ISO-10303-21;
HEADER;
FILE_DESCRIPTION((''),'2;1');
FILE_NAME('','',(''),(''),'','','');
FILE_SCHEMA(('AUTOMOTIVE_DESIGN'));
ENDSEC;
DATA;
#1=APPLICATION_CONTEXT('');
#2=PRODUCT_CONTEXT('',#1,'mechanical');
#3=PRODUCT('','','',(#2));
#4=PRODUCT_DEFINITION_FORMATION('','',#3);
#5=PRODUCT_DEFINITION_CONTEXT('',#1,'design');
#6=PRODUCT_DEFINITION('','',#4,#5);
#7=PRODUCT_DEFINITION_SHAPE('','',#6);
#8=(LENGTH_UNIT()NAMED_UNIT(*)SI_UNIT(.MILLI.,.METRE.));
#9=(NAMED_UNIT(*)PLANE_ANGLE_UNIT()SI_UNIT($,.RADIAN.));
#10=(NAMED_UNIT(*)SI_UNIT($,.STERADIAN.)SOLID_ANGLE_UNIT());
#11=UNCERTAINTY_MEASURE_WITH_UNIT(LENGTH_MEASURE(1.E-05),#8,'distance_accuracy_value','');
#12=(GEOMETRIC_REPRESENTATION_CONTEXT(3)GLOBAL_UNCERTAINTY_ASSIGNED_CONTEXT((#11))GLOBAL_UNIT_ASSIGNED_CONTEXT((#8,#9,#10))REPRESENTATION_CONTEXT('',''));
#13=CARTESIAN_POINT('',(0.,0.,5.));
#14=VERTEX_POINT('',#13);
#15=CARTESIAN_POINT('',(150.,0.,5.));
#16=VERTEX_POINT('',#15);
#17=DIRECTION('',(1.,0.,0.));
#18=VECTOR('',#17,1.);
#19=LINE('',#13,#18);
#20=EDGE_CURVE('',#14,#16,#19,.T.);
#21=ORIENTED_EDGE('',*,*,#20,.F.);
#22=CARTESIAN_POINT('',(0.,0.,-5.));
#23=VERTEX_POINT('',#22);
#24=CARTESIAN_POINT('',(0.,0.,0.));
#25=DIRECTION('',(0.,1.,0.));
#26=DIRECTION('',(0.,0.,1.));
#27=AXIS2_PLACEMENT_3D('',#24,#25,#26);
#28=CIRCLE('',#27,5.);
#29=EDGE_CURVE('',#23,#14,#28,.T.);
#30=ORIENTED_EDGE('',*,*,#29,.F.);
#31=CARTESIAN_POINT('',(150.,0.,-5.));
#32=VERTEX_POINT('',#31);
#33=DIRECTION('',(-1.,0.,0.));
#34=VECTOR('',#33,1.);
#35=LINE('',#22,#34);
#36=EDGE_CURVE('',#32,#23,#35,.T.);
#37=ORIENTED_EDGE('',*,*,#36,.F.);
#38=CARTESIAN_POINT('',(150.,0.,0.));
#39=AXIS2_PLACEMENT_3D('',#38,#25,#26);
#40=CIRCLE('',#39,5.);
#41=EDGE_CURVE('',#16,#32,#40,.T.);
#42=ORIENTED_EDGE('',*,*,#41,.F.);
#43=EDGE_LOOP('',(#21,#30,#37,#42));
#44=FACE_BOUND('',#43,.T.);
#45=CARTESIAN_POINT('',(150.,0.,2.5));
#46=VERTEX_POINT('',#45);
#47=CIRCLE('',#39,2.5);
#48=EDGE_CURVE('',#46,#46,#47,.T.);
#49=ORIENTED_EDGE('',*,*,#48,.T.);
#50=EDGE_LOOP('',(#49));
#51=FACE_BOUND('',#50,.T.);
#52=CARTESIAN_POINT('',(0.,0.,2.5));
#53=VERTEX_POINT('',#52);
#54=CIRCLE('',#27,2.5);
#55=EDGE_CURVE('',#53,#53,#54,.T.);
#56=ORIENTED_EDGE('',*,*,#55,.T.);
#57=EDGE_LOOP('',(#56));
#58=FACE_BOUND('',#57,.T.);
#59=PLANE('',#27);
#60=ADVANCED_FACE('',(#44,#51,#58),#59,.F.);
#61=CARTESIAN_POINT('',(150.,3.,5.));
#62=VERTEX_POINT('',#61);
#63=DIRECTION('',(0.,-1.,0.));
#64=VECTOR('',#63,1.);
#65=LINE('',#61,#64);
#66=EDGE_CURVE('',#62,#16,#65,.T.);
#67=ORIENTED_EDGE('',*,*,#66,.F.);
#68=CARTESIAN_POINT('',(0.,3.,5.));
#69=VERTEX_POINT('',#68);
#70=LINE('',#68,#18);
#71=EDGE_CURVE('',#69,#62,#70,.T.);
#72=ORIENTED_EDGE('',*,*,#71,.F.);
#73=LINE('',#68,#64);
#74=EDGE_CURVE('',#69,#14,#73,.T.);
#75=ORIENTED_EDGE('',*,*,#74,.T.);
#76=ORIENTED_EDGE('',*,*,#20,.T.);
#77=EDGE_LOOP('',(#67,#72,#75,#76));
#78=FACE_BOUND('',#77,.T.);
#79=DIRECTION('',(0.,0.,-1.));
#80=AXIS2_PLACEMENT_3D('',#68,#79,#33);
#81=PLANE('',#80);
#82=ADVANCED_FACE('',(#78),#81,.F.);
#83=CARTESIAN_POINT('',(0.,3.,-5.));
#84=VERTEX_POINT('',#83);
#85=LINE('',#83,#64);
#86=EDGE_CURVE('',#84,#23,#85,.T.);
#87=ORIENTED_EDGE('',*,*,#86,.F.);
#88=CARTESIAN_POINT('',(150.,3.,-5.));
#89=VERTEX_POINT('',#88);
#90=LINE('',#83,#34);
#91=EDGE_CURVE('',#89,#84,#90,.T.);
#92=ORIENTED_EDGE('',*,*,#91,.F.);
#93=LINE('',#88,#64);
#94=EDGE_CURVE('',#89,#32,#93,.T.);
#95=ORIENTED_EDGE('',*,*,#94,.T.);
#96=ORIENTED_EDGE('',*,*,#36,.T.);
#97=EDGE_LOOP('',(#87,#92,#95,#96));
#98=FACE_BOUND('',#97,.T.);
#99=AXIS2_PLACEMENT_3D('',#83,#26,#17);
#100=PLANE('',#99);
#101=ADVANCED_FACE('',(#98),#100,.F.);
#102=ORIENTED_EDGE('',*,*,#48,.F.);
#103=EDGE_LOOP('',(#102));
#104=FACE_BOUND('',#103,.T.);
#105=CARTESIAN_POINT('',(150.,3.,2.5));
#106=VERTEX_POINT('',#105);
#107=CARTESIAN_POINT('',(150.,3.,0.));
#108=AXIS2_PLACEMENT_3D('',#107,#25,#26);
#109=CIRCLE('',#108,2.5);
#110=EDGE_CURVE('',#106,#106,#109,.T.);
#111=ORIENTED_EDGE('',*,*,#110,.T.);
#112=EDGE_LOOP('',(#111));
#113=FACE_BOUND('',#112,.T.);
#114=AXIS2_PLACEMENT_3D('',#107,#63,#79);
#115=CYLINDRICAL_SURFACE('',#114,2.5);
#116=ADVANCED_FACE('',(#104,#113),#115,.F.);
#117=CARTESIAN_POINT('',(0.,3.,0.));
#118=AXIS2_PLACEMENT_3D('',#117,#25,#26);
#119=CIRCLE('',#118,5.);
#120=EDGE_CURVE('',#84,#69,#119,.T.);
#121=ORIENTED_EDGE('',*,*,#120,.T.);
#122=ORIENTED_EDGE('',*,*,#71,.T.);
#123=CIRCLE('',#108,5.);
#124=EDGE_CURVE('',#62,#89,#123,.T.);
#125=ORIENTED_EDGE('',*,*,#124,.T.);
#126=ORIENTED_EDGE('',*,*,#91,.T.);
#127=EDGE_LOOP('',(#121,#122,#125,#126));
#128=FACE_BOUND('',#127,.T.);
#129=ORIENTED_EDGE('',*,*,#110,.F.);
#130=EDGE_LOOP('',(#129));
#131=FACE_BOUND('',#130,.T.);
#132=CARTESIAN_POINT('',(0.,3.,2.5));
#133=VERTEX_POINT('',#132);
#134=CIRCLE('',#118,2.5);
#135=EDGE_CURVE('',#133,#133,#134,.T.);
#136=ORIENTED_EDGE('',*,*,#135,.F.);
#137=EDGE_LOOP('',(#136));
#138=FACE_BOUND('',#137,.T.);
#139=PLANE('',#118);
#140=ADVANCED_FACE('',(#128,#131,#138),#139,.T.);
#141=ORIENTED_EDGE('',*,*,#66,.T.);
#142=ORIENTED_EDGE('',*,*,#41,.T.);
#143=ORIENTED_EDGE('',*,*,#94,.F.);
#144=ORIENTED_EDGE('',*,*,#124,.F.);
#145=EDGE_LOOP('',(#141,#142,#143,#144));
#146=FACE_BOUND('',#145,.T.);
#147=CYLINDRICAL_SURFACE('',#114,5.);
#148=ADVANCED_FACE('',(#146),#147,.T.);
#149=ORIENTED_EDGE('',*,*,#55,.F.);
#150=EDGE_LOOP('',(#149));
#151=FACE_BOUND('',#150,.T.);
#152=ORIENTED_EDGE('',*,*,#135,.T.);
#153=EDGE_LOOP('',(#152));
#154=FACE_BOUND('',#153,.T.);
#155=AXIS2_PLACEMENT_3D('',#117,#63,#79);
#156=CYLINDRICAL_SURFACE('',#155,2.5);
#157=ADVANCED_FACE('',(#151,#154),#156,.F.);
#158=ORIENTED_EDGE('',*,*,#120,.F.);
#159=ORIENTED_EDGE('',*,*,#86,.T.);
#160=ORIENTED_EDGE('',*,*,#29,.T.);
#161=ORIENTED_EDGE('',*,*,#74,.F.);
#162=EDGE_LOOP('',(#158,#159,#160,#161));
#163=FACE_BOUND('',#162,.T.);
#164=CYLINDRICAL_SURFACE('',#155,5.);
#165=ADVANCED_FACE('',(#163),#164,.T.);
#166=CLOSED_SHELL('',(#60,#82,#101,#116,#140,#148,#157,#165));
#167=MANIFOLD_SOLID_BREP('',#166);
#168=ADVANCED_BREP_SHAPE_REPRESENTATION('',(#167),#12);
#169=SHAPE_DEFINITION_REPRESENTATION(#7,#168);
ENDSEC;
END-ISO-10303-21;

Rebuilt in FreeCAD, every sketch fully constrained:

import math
import FreeCAD as App
import Part
import Sketcher
from FreeCAD import Vector
Q = App.Units.Quantity

doc = App.newDocument("Part")
body = doc.addObject("PartDesign::Body", "Body")

sketch1 = doc.addObject("Sketcher::SketchObject", "Sketch")
body.addObject(sketch1)
sketch1.AttachmentSupport = (doc.XZ_Plane, [""])
sketch1.MapMode = "FlatFace"
sketch1.addGeometry(Part.LineSegment(Vector(150, -5, 0), Vector(0, -5, 0)), False)
sketch1.addGeometry(Part.ArcOfCircle(Part.Circle(Vector(0, 0, 0), Vector(0, 0, 1), 5), math.radians(90), math.radians(270)), False)
sketch1.addGeometry(Part.LineSegment(Vector(0, 5, 0), Vector(150, 5, 0)), False)
sketch1.addGeometry(Part.ArcOfCircle(Part.Circle(Vector(150, 0, 0), Vector(0, 0, 1), 5), math.radians(-90), math.radians(90)), False)
sketch1.addGeometry(Part.Circle(Vector(150, 0, 0), Vector(0, 0, 1), 2.5), False)
sketch1.addGeometry(Part.Circle(Vector(0, 0, 0), Vector(0, 0, 1), 2.5), False)
sketch1.addConstraint(Sketcher.Constraint("Tangent", 0, 2, 1, 2))
sketch1.addConstraint(Sketcher.Constraint("Tangent", 1, 1, 2, 1))
sketch1.addConstraint(Sketcher.Constraint("Tangent", 2, 2, 3, 2))
sketch1.addConstraint(Sketcher.Constraint("Tangent", 3, 1, 0, 1))
sketch1.addConstraint(Sketcher.Constraint("Horizontal", 0))
sketch1.addConstraint(Sketcher.Constraint("Horizontal", 2))
sketch1.addConstraint(Sketcher.Constraint("Coincident", 1, 3, -1, 1))
sketch1.addConstraint(Sketcher.Constraint("Coincident", 5, 3, -1, 1))
sketch1.addConstraint(Sketcher.Constraint("Coincident", 4, 3, 3, 3))
sketch1.addConstraint(Sketcher.Constraint("Equal", 4, 5))
sketch1.addConstraint(Sketcher.Constraint("Diameter", 4, Q("5 mm")))
sketch1.addConstraint(Sketcher.Constraint("Radius", 1, Q("5 mm")))
sketch1.addConstraint(Sketcher.Constraint("DistanceX", 0, 2, 0, 1, Q("150 mm")))
pad1 = doc.addObject("PartDesign::Pad", "Pad")
body.addObject(pad1)
pad1.Profile = sketch1
pad1.Length = 3
pad1.Reversed = True

doc.recompute()
